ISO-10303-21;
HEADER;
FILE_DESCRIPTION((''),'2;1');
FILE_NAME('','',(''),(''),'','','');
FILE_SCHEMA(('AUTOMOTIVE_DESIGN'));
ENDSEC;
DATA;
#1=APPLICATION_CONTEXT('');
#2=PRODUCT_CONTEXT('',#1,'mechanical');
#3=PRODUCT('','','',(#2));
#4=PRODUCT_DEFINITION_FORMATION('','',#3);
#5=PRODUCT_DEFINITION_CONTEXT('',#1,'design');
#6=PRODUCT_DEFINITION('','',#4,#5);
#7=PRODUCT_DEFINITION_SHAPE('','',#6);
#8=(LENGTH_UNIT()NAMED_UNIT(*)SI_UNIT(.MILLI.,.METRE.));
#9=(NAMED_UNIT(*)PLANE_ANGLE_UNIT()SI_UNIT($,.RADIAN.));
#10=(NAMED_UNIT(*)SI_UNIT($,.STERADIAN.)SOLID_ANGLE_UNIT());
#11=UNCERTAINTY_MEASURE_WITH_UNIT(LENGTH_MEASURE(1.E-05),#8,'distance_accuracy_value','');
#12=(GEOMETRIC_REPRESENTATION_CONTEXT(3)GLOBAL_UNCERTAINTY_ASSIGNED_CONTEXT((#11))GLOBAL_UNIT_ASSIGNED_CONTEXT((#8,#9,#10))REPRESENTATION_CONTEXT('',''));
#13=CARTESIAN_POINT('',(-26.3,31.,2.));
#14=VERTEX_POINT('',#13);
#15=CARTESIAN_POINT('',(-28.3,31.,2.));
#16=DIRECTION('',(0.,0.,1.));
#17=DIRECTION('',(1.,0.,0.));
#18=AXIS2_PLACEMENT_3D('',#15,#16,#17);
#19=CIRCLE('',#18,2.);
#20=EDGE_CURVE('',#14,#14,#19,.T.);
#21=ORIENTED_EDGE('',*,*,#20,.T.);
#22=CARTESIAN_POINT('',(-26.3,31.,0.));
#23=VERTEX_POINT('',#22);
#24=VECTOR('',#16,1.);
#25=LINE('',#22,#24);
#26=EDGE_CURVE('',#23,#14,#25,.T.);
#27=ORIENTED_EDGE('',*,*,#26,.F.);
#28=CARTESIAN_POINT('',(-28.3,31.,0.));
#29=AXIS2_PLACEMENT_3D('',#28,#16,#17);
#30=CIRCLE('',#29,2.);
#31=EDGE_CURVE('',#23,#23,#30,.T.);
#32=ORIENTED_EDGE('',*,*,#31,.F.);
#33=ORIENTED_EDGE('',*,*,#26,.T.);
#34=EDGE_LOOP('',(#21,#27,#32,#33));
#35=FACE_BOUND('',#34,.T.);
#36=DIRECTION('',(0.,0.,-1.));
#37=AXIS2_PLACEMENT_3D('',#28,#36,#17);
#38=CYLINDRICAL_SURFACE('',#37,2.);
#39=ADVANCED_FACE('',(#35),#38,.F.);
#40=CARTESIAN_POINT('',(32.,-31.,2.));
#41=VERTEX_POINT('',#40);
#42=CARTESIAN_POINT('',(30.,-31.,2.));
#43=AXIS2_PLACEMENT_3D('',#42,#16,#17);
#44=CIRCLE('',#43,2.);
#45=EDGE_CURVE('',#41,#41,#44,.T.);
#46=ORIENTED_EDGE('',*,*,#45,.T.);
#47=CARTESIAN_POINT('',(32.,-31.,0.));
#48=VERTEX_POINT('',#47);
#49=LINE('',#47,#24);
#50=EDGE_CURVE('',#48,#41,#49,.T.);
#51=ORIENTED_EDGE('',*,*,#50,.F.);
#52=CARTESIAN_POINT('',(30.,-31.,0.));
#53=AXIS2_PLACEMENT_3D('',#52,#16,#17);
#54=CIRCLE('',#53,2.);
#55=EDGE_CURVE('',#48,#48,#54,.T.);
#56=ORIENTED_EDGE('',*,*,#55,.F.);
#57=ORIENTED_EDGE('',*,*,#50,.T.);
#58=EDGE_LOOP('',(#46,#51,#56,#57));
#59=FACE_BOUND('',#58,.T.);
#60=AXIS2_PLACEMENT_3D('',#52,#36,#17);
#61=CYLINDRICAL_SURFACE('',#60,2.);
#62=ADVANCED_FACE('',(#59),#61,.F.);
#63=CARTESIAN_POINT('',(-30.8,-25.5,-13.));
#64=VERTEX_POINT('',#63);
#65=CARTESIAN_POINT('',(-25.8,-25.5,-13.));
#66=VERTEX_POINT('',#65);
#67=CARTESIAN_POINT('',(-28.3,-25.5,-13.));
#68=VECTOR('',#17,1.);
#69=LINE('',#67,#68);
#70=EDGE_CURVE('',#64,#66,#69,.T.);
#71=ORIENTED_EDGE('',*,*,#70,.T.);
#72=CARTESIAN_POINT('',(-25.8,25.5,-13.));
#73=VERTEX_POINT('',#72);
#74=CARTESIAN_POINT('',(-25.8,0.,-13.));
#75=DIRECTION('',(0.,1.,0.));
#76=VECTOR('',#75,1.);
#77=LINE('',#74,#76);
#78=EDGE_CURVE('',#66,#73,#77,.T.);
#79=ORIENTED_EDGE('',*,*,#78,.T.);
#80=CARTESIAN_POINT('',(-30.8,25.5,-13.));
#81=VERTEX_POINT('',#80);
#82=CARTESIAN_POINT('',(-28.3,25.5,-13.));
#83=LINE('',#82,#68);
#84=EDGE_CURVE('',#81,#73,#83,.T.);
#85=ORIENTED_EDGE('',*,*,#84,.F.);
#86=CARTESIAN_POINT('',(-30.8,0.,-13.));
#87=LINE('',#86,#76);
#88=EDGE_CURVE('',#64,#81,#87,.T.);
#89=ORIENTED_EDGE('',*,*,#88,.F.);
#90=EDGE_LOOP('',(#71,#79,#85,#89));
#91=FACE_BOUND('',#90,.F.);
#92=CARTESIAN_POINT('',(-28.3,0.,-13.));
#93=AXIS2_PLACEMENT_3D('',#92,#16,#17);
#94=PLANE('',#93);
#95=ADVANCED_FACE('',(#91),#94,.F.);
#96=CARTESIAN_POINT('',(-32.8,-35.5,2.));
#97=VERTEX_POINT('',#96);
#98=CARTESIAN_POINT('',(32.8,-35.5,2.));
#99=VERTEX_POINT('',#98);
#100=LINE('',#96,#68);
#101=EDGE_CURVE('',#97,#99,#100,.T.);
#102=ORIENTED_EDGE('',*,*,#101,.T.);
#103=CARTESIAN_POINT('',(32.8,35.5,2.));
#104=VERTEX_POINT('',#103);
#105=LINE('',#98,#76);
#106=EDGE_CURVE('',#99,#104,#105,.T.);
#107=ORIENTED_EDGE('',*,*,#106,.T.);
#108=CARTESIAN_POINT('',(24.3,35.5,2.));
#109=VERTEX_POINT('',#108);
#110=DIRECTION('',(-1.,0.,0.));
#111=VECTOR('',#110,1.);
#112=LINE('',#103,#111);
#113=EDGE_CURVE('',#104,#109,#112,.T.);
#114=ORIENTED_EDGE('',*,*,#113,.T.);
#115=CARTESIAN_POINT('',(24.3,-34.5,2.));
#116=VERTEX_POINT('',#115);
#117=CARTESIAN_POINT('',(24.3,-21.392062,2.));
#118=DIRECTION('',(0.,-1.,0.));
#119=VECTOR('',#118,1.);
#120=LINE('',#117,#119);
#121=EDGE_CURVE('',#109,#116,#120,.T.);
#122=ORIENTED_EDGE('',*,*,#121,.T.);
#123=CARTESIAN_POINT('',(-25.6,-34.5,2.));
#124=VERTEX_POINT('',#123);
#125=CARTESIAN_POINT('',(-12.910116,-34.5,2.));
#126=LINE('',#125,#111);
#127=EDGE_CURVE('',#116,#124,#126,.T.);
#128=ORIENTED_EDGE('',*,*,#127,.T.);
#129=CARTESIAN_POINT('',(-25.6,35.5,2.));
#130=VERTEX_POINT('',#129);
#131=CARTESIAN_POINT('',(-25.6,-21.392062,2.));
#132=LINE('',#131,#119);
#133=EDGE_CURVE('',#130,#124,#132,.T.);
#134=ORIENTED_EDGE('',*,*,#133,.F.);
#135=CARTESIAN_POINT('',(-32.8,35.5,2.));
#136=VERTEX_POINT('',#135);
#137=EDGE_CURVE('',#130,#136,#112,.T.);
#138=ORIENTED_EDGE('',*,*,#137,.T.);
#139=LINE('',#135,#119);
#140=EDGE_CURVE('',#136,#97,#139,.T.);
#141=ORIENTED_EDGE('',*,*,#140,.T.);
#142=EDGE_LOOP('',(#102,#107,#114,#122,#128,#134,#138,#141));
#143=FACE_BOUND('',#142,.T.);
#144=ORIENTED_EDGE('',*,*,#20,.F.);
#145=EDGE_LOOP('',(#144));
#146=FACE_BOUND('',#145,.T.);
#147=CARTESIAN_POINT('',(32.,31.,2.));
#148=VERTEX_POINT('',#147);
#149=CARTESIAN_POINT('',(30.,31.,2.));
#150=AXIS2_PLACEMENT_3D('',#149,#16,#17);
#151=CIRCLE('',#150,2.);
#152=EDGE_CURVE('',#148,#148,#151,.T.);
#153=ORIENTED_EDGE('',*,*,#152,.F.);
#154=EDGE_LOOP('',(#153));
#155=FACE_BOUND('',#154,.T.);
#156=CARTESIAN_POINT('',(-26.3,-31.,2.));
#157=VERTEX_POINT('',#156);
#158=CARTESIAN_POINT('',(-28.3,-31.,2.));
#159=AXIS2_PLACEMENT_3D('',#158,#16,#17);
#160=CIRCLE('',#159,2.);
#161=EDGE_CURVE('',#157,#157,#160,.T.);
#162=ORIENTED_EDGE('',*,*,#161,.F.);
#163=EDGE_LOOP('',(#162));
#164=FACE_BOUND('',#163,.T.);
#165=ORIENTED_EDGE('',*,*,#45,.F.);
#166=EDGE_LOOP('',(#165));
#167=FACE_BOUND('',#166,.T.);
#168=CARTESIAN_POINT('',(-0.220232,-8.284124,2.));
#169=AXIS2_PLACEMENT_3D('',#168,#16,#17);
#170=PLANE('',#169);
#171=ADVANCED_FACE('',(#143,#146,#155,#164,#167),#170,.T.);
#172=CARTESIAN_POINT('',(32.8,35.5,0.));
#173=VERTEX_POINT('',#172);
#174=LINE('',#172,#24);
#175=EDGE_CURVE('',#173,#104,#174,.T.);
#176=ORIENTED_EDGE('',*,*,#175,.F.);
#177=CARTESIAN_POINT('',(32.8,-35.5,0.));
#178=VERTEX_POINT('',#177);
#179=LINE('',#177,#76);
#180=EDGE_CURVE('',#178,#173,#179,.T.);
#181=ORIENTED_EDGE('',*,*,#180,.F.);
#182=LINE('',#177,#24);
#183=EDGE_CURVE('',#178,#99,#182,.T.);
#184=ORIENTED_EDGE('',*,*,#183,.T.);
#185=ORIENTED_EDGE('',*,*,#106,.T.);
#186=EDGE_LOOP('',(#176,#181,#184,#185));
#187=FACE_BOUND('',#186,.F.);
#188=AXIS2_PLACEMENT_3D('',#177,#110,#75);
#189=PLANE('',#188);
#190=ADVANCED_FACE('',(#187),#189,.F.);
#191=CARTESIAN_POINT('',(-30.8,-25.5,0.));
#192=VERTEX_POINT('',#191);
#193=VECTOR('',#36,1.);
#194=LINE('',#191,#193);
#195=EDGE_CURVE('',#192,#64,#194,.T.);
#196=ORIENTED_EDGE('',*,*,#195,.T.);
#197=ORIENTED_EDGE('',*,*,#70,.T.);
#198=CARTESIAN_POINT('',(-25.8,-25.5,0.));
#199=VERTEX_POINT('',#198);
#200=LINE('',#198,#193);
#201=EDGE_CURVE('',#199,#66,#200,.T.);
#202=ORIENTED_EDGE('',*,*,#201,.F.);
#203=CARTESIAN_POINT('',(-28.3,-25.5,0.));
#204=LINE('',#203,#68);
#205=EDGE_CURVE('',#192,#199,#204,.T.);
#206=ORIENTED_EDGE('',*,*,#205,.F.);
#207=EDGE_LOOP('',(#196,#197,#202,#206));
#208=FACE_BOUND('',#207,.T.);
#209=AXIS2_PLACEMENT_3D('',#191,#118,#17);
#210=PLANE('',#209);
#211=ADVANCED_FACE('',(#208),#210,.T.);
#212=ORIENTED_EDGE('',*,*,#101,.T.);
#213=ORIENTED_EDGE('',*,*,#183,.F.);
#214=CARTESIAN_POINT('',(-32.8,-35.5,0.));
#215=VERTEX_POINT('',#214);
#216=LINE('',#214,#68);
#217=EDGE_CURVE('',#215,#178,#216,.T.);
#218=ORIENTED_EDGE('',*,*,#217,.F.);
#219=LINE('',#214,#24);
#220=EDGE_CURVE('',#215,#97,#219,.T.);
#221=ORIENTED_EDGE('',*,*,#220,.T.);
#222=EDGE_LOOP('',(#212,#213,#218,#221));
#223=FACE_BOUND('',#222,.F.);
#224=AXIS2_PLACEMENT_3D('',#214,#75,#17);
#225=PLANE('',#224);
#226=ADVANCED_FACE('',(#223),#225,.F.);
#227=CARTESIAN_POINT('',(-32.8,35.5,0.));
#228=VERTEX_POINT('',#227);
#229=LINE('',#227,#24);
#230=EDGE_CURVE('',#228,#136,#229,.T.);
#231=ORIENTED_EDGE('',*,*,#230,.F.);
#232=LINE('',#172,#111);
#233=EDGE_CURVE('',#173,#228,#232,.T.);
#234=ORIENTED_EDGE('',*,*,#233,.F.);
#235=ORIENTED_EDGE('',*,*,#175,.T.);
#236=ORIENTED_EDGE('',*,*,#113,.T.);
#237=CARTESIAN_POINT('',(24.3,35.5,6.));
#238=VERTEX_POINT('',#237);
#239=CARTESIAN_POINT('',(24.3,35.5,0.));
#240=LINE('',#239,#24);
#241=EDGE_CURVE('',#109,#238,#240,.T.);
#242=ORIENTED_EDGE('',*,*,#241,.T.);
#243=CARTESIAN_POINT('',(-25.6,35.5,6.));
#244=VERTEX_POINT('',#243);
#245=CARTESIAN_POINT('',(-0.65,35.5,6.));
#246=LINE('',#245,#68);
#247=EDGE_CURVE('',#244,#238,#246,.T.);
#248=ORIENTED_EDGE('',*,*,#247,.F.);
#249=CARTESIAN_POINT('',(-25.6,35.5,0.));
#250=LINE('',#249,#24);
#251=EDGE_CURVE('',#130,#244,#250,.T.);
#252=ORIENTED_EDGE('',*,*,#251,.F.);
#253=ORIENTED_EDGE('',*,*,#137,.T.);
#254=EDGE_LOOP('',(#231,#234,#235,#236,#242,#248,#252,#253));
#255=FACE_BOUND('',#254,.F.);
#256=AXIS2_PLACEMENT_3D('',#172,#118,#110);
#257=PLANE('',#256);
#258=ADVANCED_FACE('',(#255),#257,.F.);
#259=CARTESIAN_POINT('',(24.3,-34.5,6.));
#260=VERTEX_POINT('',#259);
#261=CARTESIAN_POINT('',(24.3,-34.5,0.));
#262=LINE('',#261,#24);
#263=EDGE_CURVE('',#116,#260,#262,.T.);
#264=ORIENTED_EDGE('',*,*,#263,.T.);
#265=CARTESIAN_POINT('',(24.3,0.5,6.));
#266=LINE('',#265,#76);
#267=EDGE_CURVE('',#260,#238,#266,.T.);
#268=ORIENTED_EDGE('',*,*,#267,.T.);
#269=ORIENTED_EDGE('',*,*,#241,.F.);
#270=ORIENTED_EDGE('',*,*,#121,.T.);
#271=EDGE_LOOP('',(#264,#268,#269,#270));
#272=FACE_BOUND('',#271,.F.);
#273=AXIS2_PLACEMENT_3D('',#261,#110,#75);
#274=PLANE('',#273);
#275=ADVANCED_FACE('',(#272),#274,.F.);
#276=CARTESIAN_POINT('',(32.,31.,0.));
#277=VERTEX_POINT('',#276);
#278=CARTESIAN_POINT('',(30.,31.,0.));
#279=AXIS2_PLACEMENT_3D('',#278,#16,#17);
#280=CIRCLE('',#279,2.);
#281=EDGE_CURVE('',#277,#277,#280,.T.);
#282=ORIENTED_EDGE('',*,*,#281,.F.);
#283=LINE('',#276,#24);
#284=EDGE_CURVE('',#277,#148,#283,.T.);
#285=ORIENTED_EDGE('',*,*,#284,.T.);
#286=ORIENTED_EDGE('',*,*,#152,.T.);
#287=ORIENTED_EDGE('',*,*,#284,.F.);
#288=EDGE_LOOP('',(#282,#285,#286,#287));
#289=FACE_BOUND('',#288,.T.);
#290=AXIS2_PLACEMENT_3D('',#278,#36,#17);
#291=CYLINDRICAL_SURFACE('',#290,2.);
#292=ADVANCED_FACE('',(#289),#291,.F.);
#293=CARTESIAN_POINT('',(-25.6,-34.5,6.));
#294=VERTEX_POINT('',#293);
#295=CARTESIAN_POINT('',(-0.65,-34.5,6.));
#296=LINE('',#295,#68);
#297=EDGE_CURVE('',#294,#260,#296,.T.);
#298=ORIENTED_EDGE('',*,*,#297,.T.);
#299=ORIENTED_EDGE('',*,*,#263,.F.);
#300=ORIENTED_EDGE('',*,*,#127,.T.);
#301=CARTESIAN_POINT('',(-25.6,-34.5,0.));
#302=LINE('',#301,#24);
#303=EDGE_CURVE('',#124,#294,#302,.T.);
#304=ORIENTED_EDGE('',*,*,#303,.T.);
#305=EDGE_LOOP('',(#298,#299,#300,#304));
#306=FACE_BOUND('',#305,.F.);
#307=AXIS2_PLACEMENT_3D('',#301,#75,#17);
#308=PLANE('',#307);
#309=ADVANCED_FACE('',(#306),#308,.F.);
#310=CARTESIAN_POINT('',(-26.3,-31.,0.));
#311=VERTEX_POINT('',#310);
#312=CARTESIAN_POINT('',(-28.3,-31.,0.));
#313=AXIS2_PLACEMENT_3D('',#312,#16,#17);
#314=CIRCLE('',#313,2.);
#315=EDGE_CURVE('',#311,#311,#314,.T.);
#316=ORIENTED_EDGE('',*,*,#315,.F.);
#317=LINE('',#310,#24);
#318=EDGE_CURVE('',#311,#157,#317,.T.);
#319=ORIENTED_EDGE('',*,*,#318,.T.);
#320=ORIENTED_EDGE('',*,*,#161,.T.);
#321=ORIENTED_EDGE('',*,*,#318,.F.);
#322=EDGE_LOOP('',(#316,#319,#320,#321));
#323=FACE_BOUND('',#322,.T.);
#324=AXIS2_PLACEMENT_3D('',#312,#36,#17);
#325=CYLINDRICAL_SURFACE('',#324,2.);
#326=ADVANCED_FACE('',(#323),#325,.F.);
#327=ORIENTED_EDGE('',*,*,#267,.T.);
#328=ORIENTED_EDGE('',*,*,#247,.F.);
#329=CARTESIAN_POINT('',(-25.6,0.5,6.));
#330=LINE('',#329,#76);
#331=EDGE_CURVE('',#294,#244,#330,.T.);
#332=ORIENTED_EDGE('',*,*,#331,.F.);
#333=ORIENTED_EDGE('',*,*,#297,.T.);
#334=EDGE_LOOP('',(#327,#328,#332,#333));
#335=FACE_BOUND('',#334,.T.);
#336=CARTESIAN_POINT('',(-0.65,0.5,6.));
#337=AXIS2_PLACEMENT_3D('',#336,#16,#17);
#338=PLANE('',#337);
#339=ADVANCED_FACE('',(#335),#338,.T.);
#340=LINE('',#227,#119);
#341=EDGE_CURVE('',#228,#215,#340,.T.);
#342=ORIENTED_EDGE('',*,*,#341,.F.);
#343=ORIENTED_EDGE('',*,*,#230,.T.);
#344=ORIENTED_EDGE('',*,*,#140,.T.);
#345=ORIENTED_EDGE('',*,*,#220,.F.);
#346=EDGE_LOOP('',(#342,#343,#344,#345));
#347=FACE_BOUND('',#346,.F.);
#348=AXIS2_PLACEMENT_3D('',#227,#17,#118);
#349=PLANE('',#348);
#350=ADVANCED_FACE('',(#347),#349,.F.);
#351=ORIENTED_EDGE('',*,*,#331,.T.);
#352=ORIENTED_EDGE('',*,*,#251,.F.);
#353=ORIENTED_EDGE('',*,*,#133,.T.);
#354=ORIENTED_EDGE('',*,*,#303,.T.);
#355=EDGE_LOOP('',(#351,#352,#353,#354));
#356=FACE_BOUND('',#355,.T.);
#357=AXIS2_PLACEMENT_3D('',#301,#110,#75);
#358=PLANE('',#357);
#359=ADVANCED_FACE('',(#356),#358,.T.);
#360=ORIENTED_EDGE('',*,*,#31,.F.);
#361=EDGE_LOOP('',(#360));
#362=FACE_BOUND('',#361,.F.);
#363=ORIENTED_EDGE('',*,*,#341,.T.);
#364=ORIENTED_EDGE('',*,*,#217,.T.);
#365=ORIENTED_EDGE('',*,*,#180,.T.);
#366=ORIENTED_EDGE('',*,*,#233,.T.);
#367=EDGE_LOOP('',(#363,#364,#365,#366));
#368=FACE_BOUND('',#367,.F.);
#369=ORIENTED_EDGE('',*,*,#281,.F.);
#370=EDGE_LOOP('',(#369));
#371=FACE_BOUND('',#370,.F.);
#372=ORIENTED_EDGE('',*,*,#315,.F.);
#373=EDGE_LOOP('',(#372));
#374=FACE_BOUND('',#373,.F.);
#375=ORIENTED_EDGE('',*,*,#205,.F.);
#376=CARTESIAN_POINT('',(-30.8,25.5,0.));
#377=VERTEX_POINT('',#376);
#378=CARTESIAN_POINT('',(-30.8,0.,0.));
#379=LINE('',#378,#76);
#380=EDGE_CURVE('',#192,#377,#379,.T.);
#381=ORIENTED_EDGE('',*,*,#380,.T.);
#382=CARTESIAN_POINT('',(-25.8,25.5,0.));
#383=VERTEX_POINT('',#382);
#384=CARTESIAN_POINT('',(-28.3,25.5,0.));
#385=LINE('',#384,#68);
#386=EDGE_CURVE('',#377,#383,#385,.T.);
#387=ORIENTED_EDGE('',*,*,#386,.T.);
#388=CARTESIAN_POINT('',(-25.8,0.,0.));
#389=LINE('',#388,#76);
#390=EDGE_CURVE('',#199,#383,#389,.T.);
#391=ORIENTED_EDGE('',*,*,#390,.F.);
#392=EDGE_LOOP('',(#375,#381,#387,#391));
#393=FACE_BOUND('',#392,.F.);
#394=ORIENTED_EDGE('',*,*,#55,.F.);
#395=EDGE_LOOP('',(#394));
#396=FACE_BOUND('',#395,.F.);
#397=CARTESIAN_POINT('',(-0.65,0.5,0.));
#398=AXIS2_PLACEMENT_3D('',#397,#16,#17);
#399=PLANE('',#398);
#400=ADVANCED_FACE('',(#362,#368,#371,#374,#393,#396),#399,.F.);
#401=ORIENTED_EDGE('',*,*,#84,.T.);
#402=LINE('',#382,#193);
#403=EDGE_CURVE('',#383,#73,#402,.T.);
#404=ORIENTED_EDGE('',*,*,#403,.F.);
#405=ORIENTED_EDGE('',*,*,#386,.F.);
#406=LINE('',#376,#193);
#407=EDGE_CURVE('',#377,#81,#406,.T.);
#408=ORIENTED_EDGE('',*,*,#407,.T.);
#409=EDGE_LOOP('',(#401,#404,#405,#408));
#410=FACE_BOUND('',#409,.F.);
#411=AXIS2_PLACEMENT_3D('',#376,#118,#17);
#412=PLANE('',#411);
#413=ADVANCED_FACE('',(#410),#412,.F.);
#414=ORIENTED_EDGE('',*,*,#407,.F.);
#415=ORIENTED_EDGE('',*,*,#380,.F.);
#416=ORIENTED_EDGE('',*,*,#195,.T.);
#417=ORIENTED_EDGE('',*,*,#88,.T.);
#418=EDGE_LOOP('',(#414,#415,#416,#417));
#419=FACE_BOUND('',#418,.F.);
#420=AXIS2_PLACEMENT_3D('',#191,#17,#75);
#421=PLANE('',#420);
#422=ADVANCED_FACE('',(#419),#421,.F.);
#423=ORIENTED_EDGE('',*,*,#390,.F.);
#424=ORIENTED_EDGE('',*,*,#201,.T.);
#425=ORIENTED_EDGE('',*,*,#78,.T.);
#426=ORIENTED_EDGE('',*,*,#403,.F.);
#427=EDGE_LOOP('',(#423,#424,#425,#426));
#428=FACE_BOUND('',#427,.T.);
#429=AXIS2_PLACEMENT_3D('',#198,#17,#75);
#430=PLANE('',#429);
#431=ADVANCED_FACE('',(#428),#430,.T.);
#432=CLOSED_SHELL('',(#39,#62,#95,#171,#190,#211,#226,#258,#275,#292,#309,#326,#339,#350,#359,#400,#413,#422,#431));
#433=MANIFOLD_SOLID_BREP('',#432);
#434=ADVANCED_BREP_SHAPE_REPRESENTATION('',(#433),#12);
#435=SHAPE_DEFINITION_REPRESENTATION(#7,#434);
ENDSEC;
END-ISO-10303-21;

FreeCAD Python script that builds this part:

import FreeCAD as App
import Part
import Sketcher
Q = App.Units.Quantity


def add_polygon(sketch, points):
    """Adds a closed chain of lines whose ends are joined by coincident constraints."""
    first, n = sketch.GeometryCount, len(points)
    for a, b in zip(points, points[1:] + points[:1]):
        sketch.addGeometry(Part.LineSegment(App.Vector(*a, 0), App.Vector(*b, 0)), False)
    for i in range(n):
        sketch.addConstraint(Sketcher.Constraint("Coincident", first + i, 2, first + (i + 1) % n, 1))

doc = App.newDocument("Part")
params = doc.addObject("Spreadsheet::Sheet", "Params")
for row, (alias, value) in enumerate([
    ("sketch1_diameter", "4 mm"),
    ("sketch1_height", "71 mm"),
    ("sketch1_width", "65.6 mm"),
    ("pad1_length", "2 mm"),
    ("sketch2_height", "70 mm"),
    ("sketch2_width", "49.9 mm"),
    ("pad2_length", "6 mm"),
    ("sketch3_width", "5 mm"),
    ("sketch3_height", "51 mm"),
    ("pad3_length", "13 mm"),
], start=1):
    params.set(f"A{row}", alias)
    params.set(f"B{row}", "=" + value)
    params.setAlias(f"B{row}", alias)

body = doc.addObject("PartDesign::Body", "Body")

# Sketch on XY plane
sketch1 = body.newObject("Sketcher::SketchObject", "Sketch")
sketch1.AttachmentSupport = (doc.getObject("XY_Plane"), [""])
sketch1.MapMode = "FlatFace"
add_polygon(sketch1, [(-32.8, 35.5), (-32.8, -35.5), (32.8, -35.5), (32.8, 35.5)])  # lines 0-3
sketch1.addGeometry(Part.Circle(App.Vector(-28.3, -31, 0), App.Vector(0, 0, 1), 2), False)  # 4
sketch1.addGeometry(Part.Circle(App.Vector(30, -31, 0), App.Vector(0, 0, 1), 2), False)  # 5
sketch1.addGeometry(Part.Circle(App.Vector(-28.3, 31, 0), App.Vector(0, 0, 1), 2), False)  # 6
sketch1.addGeometry(Part.Circle(App.Vector(30, 31, 0), App.Vector(0, 0, 1), 2), False)  # 7
sketch1.addConstraint(Sketcher.Constraint("Vertical", 0))
sketch1.addConstraint(Sketcher.Constraint("Horizontal", 1))
sketch1.addConstraint(Sketcher.Constraint("Vertical", 2))
sketch1.addConstraint(Sketcher.Constraint("Horizontal", 3))
sketch1.addConstraint(Sketcher.Constraint("Equal", 4, 5))
sketch1.addConstraint(Sketcher.Constraint("Equal", 5, 6))
sketch1.addConstraint(Sketcher.Constraint("Equal", 6, 7))
sketch1.addConstraint(Sketcher.Constraint("Symmetric", 0, 2, 2, 2, -1, 1))
sketch1.addConstraint(Sketcher.Constraint("Symmetric", 4, 3, 6, 3, -1))
sketch1.addConstraint(Sketcher.Constraint("Symmetric", 5, 3, 7, 3, -1))
sketch1.addConstraint(Sketcher.Constraint("Horizontal", 4, 3, 5, 3))
sketch1.addConstraint(Sketcher.Constraint("Diameter", 4, Q("4 mm")))
sketch1.addConstraint(Sketcher.Constraint("DistanceY", 0, 2, 0, 1, Q("71 mm")))
sketch1.addConstraint(Sketcher.Constraint("DistanceX", 1, 1, 1, 2, Q("65.6 mm")))
sketch1.addConstraint(Sketcher.Constraint("DistanceY", 4, 3, -1, 1, Q("31 mm")))
sketch1.addConstraint(Sketcher.Constraint("DistanceX", -1, 1, 5, 3, Q("30 mm")))
sketch1.addConstraint(Sketcher.Constraint("DistanceX", 4, 3, -1, 1, Q("28.3 mm")))
sketch1.setExpression("Constraints[15]", "Params.sketch1_diameter")
sketch1.setExpression("Constraints[16]", "Params.sketch1_height")
sketch1.setExpression("Constraints[17]", "Params.sketch1_width")
pad1 = body.newObject("PartDesign::Pad", "Pad")
pad1.Profile = sketch1
pad1.setExpression("Length", "Params.pad1_length")

# Sketch on XY plane
sketch2 = body.newObject("Sketcher::SketchObject", "Sketch001")
sketch2.AttachmentSupport = (doc.getObject("XY_Plane"), [""])
sketch2.MapMode = "FlatFace"
add_polygon(sketch2, [(-26, 36), (-26, -34), (24, -34), (24, 36)])  # lines 0-3
sketch2.addConstraint(Sketcher.Constraint("Vertical", 0))
sketch2.addConstraint(Sketcher.Constraint("Horizontal", 1))
sketch2.addConstraint(Sketcher.Constraint("Vertical", 2))
sketch2.addConstraint(Sketcher.Constraint("Horizontal", 3))
sketch2.addConstraint(Sketcher.Constraint("DistanceY", 0, 2, 0, 1, Q("70 mm")))
sketch2.addConstraint(Sketcher.Constraint("DistanceX", 1, 1, 1, 2, Q("49.9 mm")))
sketch2.addConstraint(Sketcher.Constraint("DistanceX", 0, 2, -1, 1, Q("25.6 mm")))
sketch2.addConstraint(Sketcher.Constraint("DistanceY", 0, 2, -1, 1, Q("34.5 mm")))
sketch2.setExpression("Constraints[8]", "Params.sketch2_height")
sketch2.setExpression("Constraints[9]", "Params.sketch2_width")
pad2 = body.newObject("PartDesign::Pad", "Pad001")
pad2.Profile = sketch2
pad2.setExpression("Length", "Params.pad2_length")

# Sketch on XY plane
sketch3 = body.newObject("Sketcher::SketchObject", "Sketch002")
sketch3.AttachmentSupport = (doc.getObject("XY_Plane"), [""])
sketch3.MapMode = "FlatFace"
add_polygon(sketch3, [(-31, 26), (-31, -26), (-26, -26), (-26, 26)])  # lines 0-3
sketch3.addConstraint(Sketcher.Constraint("Vertical", 0))
sketch3.addConstraint(Sketcher.Constraint("Horizontal", 1))
sketch3.addConstraint(Sketcher.Constraint("Vertical", 2))
sketch3.addConstraint(Sketcher.Constraint("Horizontal", 3))
sketch3.addConstraint(Sketcher.Constraint("DistanceX", 1, 1, 1, 2, Q("5 mm")))
sketch3.addConstraint(Sketcher.Constraint("DistanceY", 0, 2, 0, 1, Q("51 mm")))
sketch3.addConstraint(Sketcher.Constraint("DistanceX", 0, 2, -1, 1, Q("30.8 mm")))
sketch3.addConstraint(Sketcher.Constraint("DistanceY", 0, 2, -1, 1, Q("25.5 mm")))
sketch3.setExpression("Constraints[8]", "Params.sketch3_width")
sketch3.setExpression("Constraints[9]", "Params.sketch3_height")
pad3 = body.newObject("PartDesign::Pad", "Pad002")
pad3.Profile = sketch3
pad3.setExpression("Length", "Params.pad3_length")
pad3.Reversed = True

doc.recompute()
